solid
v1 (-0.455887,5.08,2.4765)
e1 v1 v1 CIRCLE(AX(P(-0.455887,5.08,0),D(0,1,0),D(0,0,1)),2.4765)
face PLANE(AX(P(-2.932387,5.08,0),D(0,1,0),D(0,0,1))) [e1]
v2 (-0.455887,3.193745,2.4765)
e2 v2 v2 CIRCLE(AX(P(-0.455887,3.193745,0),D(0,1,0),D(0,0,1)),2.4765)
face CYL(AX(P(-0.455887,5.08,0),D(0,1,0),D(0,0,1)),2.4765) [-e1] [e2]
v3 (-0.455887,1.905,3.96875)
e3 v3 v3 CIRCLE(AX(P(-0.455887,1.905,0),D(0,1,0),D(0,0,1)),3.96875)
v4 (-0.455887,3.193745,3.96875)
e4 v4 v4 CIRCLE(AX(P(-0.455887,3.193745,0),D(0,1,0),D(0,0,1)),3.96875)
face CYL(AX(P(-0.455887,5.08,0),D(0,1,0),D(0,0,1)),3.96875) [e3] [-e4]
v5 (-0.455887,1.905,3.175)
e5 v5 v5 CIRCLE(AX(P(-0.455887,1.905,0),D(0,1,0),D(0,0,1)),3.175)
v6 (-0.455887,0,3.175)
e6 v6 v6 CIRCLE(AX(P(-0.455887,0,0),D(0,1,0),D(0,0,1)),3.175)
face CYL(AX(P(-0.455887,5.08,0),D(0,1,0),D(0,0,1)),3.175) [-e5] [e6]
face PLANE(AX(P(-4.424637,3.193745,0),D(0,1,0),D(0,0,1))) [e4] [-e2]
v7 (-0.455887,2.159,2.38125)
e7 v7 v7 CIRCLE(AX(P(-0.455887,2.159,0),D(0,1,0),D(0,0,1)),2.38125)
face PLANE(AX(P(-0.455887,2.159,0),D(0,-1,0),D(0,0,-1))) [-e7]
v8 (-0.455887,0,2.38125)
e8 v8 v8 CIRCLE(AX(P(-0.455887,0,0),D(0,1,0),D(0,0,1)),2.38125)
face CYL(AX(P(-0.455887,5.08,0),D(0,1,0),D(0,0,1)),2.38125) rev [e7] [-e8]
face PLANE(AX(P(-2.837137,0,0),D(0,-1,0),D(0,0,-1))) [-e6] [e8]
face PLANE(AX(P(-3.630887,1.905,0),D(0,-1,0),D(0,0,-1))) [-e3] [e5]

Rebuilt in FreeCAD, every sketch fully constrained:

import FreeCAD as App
import Part
import Sketcher
Q = App.Units.Quantity

doc = App.newDocument("Part")
params = doc.addObject("Spreadsheet::Sheet", "Params")
for row, (alias, value) in enumerate([
    ("sketch1_height", "0.2 in"),
    ("sketch1_width", "0.09375 in"),
    ("sketch1_width2", "0.03125 in"),
    ("sketch1_height2", "0.115 in"),
    ("sketch1_height3", "0.075 in"),
    ("revolution_angle", "360 deg"),
], start=1):
    params.set(f"A{row}", alias)
    params.set(f"B{row}", "=" + value)
    params.setAlias(f"B{row}", alias)

body = doc.addObject("PartDesign::Body", "Body")

# Sketch on XY plane
sketch1 = body.newObject("Sketcher::SketchObject", "Sketch")
sketch1.AttachmentSupport = (doc.getObject("XY_Plane"), [""])
sketch1.MapMode = "FlatFace"
sketch1.addGeometry(Part.LineSegment(App.Vector(-2.837137, 2.159, 0), App.Vector(-0.455887, 2.159, 0)), False)
sketch1.addGeometry(Part.LineSegment(App.Vector(-0.455887, 2.159, 0), App.Vector(-0.455887, 5.08, 0)), False)
sketch1.addGeometry(Part.LineSegment(App.Vector(-0.455887, 5.08, 0), App.Vector(-2.932387, 5.08, 0)), False)
sketch1.addGeometry(Part.LineSegment(App.Vector(-2.932387, 5.08, 0), App.Vector(-2.932387, 3.193745, 0)), False)
sketch1.addGeometry(Part.LineSegment(App.Vector(-2.932387, 3.193745, 0), App.Vector(-4.424637, 3.193745, 0)), False)
sketch1.addGeometry(Part.LineSegment(App.Vector(-4.424637, 3.193745, 0), App.Vector(-4.424637, 1.905, 0)), False)
sketch1.addGeometry(Part.LineSegment(App.Vector(-4.424637, 1.905, 0), App.Vector(-3.630887, 1.905, 0)), False)
sketch1.addGeometry(Part.LineSegment(App.Vector(-3.630887, 1.905, 0), App.Vector(-3.630887, 0, 0)), False)
sketch1.addGeometry(Part.LineSegment(App.Vector(-3.630887, 0, 0), App.Vector(-2.837137, 0, 0)), False)
sketch1.addGeometry(Part.LineSegment(App.Vector(-2.837137, 0, 0), App.Vector(-2.837137, 2.159, 0)), False)
sketch1.addGeometry(Part.LineSegment(App.Vector(-0.455887, 5.08, 0), App.Vector(-0.455887, 0, 0)), True)  # axis
sketch1.addConstraint(Sketcher.Constraint("Coincident", 0, 2, 1, 1))
sketch1.addConstraint(Sketcher.Constraint("Coincident", 1, 2, 2, 1))
sketch1.addConstraint(Sketcher.Constraint("Coincident", 2, 2, 3, 1))
sketch1.addConstraint(Sketcher.Constraint("Coincident", 3, 2, 4, 1))
sketch1.addConstraint(Sketcher.Constraint("Coincident", 4, 2, 5, 1))
sketch1.addConstraint(Sketcher.Constraint("Coincident", 5, 2, 6, 1))
sketch1.addConstraint(Sketcher.Constraint("Coincident", 6, 2, 7, 1))
sketch1.addConstraint(Sketcher.Constraint("Coincident", 7, 2, 8, 1))
sketch1.addConstraint(Sketcher.Constraint("Coincident", 8, 2, 9, 1))
sketch1.addConstraint(Sketcher.Constraint("Coincident", 9, 2, 0, 1))
sketch1.addConstraint(Sketcher.Constraint("Horizontal", 0))
sketch1.addConstraint(Sketcher.Constraint("Vertical", 1))
sketch1.addConstraint(Sketcher.Constraint("Horizontal", 2))
sketch1.addConstraint(Sketcher.Constraint("Vertical", 3))
sketch1.addConstraint(Sketcher.Constraint("Horizontal", 4))
sketch1.addConstraint(Sketcher.Constraint("Vertical", 5))
sketch1.addConstraint(Sketcher.Constraint("Horizontal", 6))
sketch1.addConstraint(Sketcher.Constraint("Vertical", 7))
sketch1.addConstraint(Sketcher.Constraint("Horizontal", 8))
sketch1.addConstraint(Sketcher.Constraint("Vertical", 9))
sketch1.addConstraint(Sketcher.Constraint("Vertical", 10))
sketch1.addConstraint(Sketcher.Constraint("Coincident", 10, 1, 1, 2))
sketch1.addConstraint(Sketcher.Constraint("PointOnObject", 7, 2, -1))
sketch1.addConstraint(Sketcher.Constraint("PointOnObject", 10, 2, -1))
sketch1.addConstraint(Sketcher.Constraint("Equal", 6, 8))
sketch1.addConstraint(Sketcher.Constraint("DistanceY", 10, 2, 10, 1, Q("0.2 in")))
sketch1.addConstraint(Sketcher.Constraint("DistanceX", 0, 1, 0, 2, Q("0.09375 in")))
sketch1.addConstraint(Sketcher.Constraint("DistanceX", 6, 1, 6, 2, Q("0.03125 in")))
sketch1.addConstraint(Sketcher.Constraint("DistanceY", 1, 1, 1, 2, Q("0.115 in")))
sketch1.addConstraint(Sketcher.Constraint("DistanceY", 7, 2, 7, 1, Q("0.075 in")))
sketch1.addConstraint(Sketcher.Constraint("DistanceX", 2, 2, 2, 1, Q("0.0975 in")))
sketch1.addConstraint(Sketcher.Constraint("DistanceY", 3, 2, 3, 1, 1.886255))
sketch1.addConstraint(Sketcher.Constraint("DistanceX", 0, 2, -1, 1, 0.455887))
sketch1.setExpression("Constraints[25]", "Params.sketch1_height")
sketch1.setExpression("Constraints[26]", "Params.sketch1_width")
sketch1.setExpression("Constraints[27]", "Params.sketch1_width2")
sketch1.setExpression("Constraints[28]", "Params.sketch1_height2")
sketch1.setExpression("Constraints[29]", "Params.sketch1_height3")
revolution = body.newObject("PartDesign::Revolution", "Revolution")
revolution.Profile = sketch1
revolution.ReferenceAxis = (sketch1, ["Axis0"])
revolution.setExpression("Angle", "Params.revolution_angle")

doc.recompute()
